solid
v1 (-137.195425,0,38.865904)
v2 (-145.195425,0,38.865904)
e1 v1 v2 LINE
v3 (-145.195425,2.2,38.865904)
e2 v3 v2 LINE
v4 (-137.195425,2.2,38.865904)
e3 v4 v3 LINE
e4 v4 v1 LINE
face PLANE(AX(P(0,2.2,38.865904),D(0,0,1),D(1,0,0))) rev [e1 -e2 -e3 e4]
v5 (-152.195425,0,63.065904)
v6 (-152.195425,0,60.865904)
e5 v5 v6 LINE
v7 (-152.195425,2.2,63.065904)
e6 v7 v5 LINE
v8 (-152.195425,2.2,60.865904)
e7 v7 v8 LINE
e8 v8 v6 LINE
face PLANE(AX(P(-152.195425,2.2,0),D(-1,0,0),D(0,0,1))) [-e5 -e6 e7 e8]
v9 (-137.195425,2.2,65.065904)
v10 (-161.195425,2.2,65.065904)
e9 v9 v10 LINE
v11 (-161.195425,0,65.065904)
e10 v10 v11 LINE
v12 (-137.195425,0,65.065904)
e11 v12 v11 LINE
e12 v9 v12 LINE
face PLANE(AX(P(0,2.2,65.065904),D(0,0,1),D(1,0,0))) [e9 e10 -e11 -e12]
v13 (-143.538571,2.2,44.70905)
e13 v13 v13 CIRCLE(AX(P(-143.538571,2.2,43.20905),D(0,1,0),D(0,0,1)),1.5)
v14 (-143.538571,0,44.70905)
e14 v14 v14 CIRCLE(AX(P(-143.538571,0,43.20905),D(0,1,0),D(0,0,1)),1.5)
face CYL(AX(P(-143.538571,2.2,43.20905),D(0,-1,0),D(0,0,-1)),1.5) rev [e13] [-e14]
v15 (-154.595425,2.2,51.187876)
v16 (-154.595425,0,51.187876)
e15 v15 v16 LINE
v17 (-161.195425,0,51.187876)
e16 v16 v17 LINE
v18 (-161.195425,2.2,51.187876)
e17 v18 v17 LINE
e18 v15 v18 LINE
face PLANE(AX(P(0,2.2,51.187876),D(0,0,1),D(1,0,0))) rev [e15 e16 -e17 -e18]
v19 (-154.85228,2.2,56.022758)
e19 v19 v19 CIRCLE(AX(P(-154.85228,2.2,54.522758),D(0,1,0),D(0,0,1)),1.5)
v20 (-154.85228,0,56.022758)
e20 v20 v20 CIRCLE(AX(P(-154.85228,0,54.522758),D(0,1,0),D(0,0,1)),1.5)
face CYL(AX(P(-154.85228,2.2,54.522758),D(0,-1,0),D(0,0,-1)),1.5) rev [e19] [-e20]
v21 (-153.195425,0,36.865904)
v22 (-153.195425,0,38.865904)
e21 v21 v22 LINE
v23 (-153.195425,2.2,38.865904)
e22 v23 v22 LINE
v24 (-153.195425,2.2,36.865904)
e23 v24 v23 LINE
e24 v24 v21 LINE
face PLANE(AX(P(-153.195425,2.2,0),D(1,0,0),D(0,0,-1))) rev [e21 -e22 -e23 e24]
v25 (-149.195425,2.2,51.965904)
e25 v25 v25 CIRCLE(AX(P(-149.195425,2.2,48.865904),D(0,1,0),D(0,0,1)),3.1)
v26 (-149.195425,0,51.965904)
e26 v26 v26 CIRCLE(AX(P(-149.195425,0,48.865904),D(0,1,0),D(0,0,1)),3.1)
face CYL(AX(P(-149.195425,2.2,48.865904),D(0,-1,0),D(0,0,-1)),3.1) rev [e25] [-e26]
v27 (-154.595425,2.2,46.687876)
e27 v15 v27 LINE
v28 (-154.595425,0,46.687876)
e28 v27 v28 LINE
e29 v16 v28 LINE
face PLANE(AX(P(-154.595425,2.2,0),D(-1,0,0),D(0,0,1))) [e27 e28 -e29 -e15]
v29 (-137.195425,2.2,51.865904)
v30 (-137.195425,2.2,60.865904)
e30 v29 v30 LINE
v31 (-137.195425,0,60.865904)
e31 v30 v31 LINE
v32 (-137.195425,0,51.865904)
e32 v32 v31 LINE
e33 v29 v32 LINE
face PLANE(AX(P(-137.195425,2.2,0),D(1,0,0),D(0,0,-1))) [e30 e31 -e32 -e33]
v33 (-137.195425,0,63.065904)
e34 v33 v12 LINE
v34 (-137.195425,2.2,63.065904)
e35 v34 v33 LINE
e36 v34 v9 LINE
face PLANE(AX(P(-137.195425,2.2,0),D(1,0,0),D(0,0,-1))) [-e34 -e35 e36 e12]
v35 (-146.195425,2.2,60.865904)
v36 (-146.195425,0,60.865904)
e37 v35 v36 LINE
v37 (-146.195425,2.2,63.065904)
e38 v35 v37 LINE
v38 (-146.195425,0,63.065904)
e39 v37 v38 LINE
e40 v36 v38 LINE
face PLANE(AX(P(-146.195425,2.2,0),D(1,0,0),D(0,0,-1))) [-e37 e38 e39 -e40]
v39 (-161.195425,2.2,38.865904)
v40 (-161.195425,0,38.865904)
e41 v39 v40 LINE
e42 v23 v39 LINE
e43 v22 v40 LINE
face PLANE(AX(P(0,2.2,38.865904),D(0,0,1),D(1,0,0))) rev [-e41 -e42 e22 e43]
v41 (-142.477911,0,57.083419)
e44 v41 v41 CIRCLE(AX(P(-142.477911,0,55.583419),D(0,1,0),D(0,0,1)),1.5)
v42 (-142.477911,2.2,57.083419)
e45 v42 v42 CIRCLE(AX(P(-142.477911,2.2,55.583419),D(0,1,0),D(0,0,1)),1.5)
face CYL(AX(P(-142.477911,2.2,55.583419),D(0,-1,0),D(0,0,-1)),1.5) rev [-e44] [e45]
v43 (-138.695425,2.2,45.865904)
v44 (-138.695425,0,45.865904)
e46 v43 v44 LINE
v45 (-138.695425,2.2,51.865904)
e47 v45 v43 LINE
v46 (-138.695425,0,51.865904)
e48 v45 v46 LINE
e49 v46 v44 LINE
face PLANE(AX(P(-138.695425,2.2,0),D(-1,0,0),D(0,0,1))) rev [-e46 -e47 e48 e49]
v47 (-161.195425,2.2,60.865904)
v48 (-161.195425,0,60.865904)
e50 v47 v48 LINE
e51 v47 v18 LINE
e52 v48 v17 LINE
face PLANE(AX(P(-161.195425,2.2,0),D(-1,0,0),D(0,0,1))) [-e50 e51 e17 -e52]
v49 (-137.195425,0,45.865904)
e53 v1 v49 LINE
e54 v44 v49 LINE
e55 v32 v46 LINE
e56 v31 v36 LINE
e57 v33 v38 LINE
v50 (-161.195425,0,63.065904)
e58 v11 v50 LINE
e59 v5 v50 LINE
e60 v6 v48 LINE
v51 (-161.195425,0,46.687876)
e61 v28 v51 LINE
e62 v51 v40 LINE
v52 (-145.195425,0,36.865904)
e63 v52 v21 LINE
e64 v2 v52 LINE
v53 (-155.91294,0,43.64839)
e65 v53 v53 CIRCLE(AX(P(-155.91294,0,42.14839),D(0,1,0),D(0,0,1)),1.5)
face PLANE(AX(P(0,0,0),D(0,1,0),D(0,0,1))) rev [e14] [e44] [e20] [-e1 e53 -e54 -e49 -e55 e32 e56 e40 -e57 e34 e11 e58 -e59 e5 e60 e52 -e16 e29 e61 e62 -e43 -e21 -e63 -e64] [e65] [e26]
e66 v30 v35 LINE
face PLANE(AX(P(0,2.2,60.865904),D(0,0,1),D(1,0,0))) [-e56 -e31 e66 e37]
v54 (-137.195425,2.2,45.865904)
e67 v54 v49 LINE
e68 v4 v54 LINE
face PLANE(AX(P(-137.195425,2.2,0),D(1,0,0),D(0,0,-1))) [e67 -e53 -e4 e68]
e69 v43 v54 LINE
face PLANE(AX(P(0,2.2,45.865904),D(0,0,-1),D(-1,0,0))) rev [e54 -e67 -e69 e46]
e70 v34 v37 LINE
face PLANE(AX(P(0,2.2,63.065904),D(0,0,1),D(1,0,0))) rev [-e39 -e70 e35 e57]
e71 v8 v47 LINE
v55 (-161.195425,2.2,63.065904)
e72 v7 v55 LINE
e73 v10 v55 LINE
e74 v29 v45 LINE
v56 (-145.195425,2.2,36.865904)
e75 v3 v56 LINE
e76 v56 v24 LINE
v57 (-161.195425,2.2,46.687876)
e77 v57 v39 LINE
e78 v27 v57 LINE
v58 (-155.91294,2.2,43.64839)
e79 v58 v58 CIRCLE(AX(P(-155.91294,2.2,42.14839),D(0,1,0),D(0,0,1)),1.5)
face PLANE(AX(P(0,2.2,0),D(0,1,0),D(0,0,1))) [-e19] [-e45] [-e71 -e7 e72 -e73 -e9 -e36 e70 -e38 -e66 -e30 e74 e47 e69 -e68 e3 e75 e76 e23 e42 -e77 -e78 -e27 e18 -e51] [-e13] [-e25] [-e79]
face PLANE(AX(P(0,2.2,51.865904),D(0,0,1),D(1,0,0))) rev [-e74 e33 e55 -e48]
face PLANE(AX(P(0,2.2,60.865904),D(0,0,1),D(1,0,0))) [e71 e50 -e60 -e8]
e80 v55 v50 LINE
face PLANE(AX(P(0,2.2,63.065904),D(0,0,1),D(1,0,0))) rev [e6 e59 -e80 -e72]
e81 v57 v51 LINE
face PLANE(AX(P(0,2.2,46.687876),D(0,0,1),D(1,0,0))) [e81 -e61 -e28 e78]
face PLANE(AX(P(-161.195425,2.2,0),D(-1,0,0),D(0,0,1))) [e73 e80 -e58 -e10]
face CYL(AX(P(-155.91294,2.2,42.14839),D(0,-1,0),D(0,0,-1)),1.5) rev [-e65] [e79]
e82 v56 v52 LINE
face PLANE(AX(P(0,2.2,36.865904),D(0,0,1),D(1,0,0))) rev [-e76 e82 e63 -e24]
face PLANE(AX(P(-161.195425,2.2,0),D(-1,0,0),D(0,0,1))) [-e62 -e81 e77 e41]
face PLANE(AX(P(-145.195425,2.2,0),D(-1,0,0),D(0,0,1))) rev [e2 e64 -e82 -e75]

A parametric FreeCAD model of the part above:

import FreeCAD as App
import Part
import Sketcher
from FreeCAD import Vector

doc = App.newDocument("Part")
body = doc.addObject("PartDesign::Body", "Body")

sketch1 = body.newObject("Sketcher::SketchObject", "Sketch")
sketch1.AttachmentSupport = (doc.getObject("XZ_Plane"), [""])
sketch1.MapMode = "FlatFace"
sketch1.addGeometry([
    Part.LineSegment(Vector(-145.195425, 36.865904, 0), Vector(-153.195425, 36.865904, 0)),
    Part.LineSegment(Vector(-153.195425, 36.865904, 0), Vector(-153.195425, 38.865904, 0)),
    Part.LineSegment(Vector(-153.195425, 38.865904, 0), Vector(-161.195425, 38.865904, 0)),
    Part.LineSegment(Vector(-161.195425, 38.865904, 0), Vector(-161.195425, 46.687876, 0)),
    Part.LineSegment(Vector(-161.195425, 46.687876, 0), Vector(-154.595425, 46.687876, 0)),
    Part.LineSegment(Vector(-154.595425, 46.687876, 0), Vector(-154.595425, 51.187876, 0)),
    Part.LineSegment(Vector(-154.595425, 51.187876, 0), Vector(-161.195425, 51.187876, 0)),
    Part.LineSegment(Vector(-161.195425, 51.187876, 0), Vector(-161.195425, 60.865904, 0)),
    Part.LineSegment(Vector(-161.195425, 60.865904, 0), Vector(-152.195425, 60.865904, 0)),
    Part.LineSegment(Vector(-152.195425, 60.865904, 0), Vector(-152.195425, 63.065904, 0)),
    Part.LineSegment(Vector(-152.195425, 63.065904, 0), Vector(-161.195425, 63.065904, 0)),
    Part.LineSegment(Vector(-161.195425, 63.065904, 0), Vector(-161.195425, 65.065904, 0)),
    Part.LineSegment(Vector(-161.195425, 65.065904, 0), Vector(-137.195425, 65.065904, 0)),
    Part.LineSegment(Vector(-137.195425, 65.065904, 0), Vector(-137.195425, 63.065904, 0)),
    Part.LineSegment(Vector(-137.195425, 63.065904, 0), Vector(-146.195425, 63.065904, 0)),
    Part.LineSegment(Vector(-146.195425, 63.065904, 0), Vector(-146.195425, 60.865904, 0)),
    Part.LineSegment(Vector(-146.195425, 60.865904, 0), Vector(-137.195425, 60.865904, 0)),
    Part.LineSegment(Vector(-137.195425, 60.865904, 0), Vector(-137.195425, 51.865904, 0)),
    Part.LineSegment(Vector(-137.195425, 51.865904, 0), Vector(-138.695425, 51.865904, 0)),
    Part.LineSegment(Vector(-138.695425, 51.865904, 0), Vector(-138.695425, 45.865904, 0)),
    Part.LineSegment(Vector(-138.695425, 45.865904, 0), Vector(-137.195425, 45.865904, 0)),
    Part.LineSegment(Vector(-137.195425, 45.865904, 0), Vector(-137.195425, 38.865904, 0)),
    Part.LineSegment(Vector(-137.195425, 38.865904, 0), Vector(-145.195425, 38.865904, 0)),
    Part.LineSegment(Vector(-145.195425, 38.865904, 0), Vector(-145.195425, 36.865904, 0)),
    Part.Circle(Vector(-154.85228, 54.522758, 0), Vector(0, 0, 1), 1.5),
    Part.Circle(Vector(-142.477911, 55.583419, 0), Vector(0, 0, 1), 1.5),
    Part.Circle(Vector(-149.195425, 48.865904, 0), Vector(0, 0, 1), 3.1),
    Part.Circle(Vector(-155.91294, 42.14839, 0), Vector(0, 0, 1), 1.5),
    Part.Circle(Vector(-143.538571, 43.20905, 0), Vector(0, 0, 1), 1.5),
], False)
sketch1.addConstraint([
    Sketcher.Constraint("Coincident", 0, 2, 1, 1),
    Sketcher.Constraint("Coincident", 1, 2, 2, 1),
    Sketcher.Constraint("Coincident", 2, 2, 3, 1),
    Sketcher.Constraint("Coincident", 3, 2, 4, 1),
    Sketcher.Constraint("Coincident", 4, 2, 5, 1),
    Sketcher.Constraint("Coincident", 5, 2, 6, 1),
    Sketcher.Constraint("Coincident", 6, 2, 7, 1),
    Sketcher.Constraint("Coincident", 7, 2, 8, 1),
    Sketcher.Constraint("Coincident", 8, 2, 9, 1),
    Sketcher.Constraint("Coincident", 9, 2, 10, 1),
    Sketcher.Constraint("Coincident", 10, 2, 11, 1),
    Sketcher.Constraint("Coincident", 11, 2, 12, 1),
    Sketcher.Constraint("Coincident", 12, 2, 13, 1),
    Sketcher.Constraint("Coincident", 13, 2, 14, 1),
    Sketcher.Constraint("Coincident", 14, 2, 15, 1),
    Sketcher.Constraint("Coincident", 15, 2, 16, 1),
    Sketcher.Constraint("Coincident", 16, 2, 17, 1),
    Sketcher.Constraint("Coincident", 17, 2, 18, 1),
    Sketcher.Constraint("Coincident", 18, 2, 19, 1),
    Sketcher.Constraint("Coincident", 19, 2, 20, 1),
    Sketcher.Constraint("Coincident", 20, 2, 21, 1),
    Sketcher.Constraint("Coincident", 21, 2, 22, 1),
    Sketcher.Constraint("Coincident", 22, 2, 23, 1),
    Sketcher.Constraint("Coincident", 23, 2, 0, 1),
    Sketcher.Constraint("Horizontal", 0),
    Sketcher.Constraint("Vertical", 1),
    Sketcher.Constraint("Horizontal", 2),
    Sketcher.Constraint("Vertical", 3),
    Sketcher.Constraint("Horizontal", 4),
    Sketcher.Constraint("Vertical", 5),
    Sketcher.Constraint("Horizontal", 6),
    Sketcher.Constraint("Vertical", 7),
    Sketcher.Constraint("Horizontal", 8),
    Sketcher.Constraint("Vertical", 9),
    Sketcher.Constraint("Horizontal", 10),
    Sketcher.Constraint("Vertical", 11),
    Sketcher.Constraint("Horizontal", 12),
    Sketcher.Constraint("Vertical", 13),
    Sketcher.Constraint("Horizontal", 14),
    Sketcher.Constraint("Vertical", 15),
    Sketcher.Constraint("Horizontal", 16),
    Sketcher.Constraint("Vertical", 17),
    Sketcher.Constraint("Horizontal", 18),
    Sketcher.Constraint("Vertical", 19),
    Sketcher.Constraint("Horizontal", 20),
    Sketcher.Constraint("Vertical", 21),
    Sketcher.Constraint("Horizontal", 22),
    Sketcher.Constraint("Vertical", 23),
    Sketcher.Constraint("Equal", 24, 25),
    Sketcher.Constraint("Equal", 25, 27),
    Sketcher.Constraint("Equal", 27, 28),
    Sketcher.Constraint("Horizontal", 10, 2, 13, 2),
    Sketcher.Constraint("Horizontal", 8, 2, 15, 2),
    Sketcher.Constraint("Horizontal", 2, 2, 21, 2),
    Sketcher.Constraint("Vertical", 3, 2, 6, 2),
    Sketcher.Constraint("Vertical", 7, 2, 10, 2),
    Sketcher.Constraint("Vertical", 13, 2, 16, 2),
    Sketcher.Constraint("Vertical", 17, 2, 20, 2),
    Sketcher.Constraint("Equal", 0, 2),
    Sketcher.Constraint("Equal", 10, 14),
    Sketcher.Constraint("Equal", 2, 22),
    Sketcher.Constraint("Equal", 1, 11),
    Sketcher.Constraint("Equal", 16, 17),
    Sketcher.Constraint("Diameter", 24, 3.0),
    Sketcher.Constraint("Diameter", 26, 6.2),
    Sketcher.Constraint("DistanceX", 0, 2, 0, 1, 8.0),
    Sketcher.Constraint("DistanceX", 8, 1, 8, 2, 9.0),
    Sketcher.Constraint("DistanceY", 1, 1, 1, 2, 2.0),
    Sketcher.Constraint("DistanceY", 19, 2, 19, 1, 6.0),
    Sketcher.Constraint("DistanceY", 21, 2, 21, 1, 7.0),
    Sketcher.Constraint("DistanceX", 4, 1, 4, 2, 6.6),
    Sketcher.Constraint("DistanceX", 18, 2, 18, 1, 1.5),
    Sketcher.Constraint("DistanceY", 5, 1, 5, 2, 4.5),
    Sketcher.Constraint("DistanceY", 9, 1, 9, 2, 2.2),
    Sketcher.Constraint("DistanceX", 0, 2, 26, 3, 4.0),
    Sketcher.Constraint("DistanceY", 0, 2, 26, 3, 12.0),
    Sketcher.Constraint("DistanceY", 3, 1, 3, 2, 7.821972),
    Sketcher.Constraint("DistanceX", 24, 3, -1, 1, 154.85228),
    Sketcher.Constraint("DistanceY", -1, 1, 24, 3, 54.522758),
    Sketcher.Constraint("DistanceX", 25, 3, -1, 1, 142.477911),
    Sketcher.Constraint("DistanceY", -1, 1, 25, 3, 55.583419),
    Sketcher.Constraint("DistanceX", 27, 3, -1, 1, 155.91294),
    Sketcher.Constraint("DistanceY", -1, 1, 27, 3, 42.14839),
    Sketcher.Constraint("DistanceX", 28, 3, -1, 1, 143.538571),
    Sketcher.Constraint("DistanceY", -1, 1, 28, 3, 43.20905),
    Sketcher.Constraint("DistanceX", 26, 3, -1, 1, 149.195425),
    Sketcher.Constraint("DistanceY", -1, 1, 26, 3, 48.865904),
])
pad1 = body.newObject("PartDesign::Pad", "Pad")
pad1.Profile = sketch1
pad1.Length = 2.2
pad1.Reversed = True

doc.recompute()
